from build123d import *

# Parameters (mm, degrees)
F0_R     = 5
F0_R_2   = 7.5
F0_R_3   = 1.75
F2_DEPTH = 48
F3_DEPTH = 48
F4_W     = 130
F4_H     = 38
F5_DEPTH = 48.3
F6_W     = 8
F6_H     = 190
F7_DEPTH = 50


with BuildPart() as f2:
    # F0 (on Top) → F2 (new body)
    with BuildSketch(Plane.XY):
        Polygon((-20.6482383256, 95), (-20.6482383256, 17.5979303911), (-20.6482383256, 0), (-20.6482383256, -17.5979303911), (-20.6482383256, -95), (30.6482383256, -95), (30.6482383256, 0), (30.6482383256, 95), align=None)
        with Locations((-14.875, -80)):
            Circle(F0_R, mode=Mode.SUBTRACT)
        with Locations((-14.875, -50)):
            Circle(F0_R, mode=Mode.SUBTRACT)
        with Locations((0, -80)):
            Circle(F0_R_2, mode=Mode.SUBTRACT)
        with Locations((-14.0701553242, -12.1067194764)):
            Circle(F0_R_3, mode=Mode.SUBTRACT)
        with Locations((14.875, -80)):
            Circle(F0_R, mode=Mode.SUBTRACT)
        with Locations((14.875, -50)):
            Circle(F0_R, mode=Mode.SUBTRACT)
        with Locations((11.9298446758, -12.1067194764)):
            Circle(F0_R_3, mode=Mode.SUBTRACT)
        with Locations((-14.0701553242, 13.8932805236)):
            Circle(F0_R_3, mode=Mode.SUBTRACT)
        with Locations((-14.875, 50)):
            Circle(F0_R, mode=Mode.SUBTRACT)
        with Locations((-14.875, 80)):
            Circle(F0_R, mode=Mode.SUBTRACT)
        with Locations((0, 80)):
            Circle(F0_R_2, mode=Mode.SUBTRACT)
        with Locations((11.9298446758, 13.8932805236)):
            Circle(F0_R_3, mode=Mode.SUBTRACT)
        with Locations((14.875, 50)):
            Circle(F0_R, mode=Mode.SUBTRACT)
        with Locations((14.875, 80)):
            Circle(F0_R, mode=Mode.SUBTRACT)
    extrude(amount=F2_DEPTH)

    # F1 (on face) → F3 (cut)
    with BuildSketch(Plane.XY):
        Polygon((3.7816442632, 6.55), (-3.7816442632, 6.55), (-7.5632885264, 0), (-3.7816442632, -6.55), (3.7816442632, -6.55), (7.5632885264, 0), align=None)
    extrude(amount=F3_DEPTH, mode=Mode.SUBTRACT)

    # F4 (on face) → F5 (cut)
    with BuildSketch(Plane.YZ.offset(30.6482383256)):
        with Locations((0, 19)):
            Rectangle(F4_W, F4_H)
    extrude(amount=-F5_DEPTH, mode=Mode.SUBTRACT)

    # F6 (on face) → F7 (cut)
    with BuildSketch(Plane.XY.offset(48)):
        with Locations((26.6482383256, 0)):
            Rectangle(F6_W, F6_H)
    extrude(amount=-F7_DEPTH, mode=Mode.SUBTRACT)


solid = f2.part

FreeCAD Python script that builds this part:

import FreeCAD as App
import Part
import Sketcher
Q = App.Units.Quantity

doc = App.newDocument("Part")
body = doc.addObject("PartDesign::Body", "Body")

sketch1 = body.newObject("Sketcher::SketchObject", "Sketch")
sketch1.AttachmentSupport = (doc.getObject("XY_Plane"), [""])
sketch1.MapMode = "FlatFace"
sketch1.addGeometry([
    Part.LineSegment(App.Vector(-20.648238, 95, 0), App.Vector(-20.648238, -95, 0)),
    Part.LineSegment(App.Vector(-20.648238, -95, 0), App.Vector(30.648238, -95, 0)),
    Part.LineSegment(App.Vector(30.648238, -95, 0), App.Vector(30.648238, 95, 0)),
    Part.LineSegment(App.Vector(30.648238, 95, 0), App.Vector(-20.648238, 95, 0)),
    Part.Circle(App.Vector(-14.875, -80, 0), App.Vector(0, 0, 1), 5),
    Part.Circle(App.Vector(-14.875, -50, 0), App.Vector(0, 0, 1), 5),
    Part.Circle(App.Vector(-14.070155, -12.106719, 0), App.Vector(0, 0, 1), 1.75),
    Part.Circle(App.Vector(0, -80, 0), App.Vector(0, 0, 1), 7.5),
    Part.Circle(App.Vector(14.875, -80, 0), App.Vector(0, 0, 1), 5),
    Part.Circle(App.Vector(14.875, -50, 0), App.Vector(0, 0, 1), 5),
    Part.Circle(App.Vector(11.929845, -12.106719, 0), App.Vector(0, 0, 1), 1.75),
    Part.Circle(App.Vector(-14.070155, 13.893281, 0), App.Vector(0, 0, 1), 1.75),
    Part.Circle(App.Vector(-14.875, 50, 0), App.Vector(0, 0, 1), 5),
    Part.Circle(App.Vector(-14.875, 80, 0), App.Vector(0, 0, 1), 5),
    Part.Circle(App.Vector(11.929845, 13.893281, 0), App.Vector(0, 0, 1), 1.75),
    Part.Circle(App.Vector(0, 80, 0), App.Vector(0, 0, 1), 7.5),
    Part.Circle(App.Vector(14.875, 50, 0), App.Vector(0, 0, 1), 5),
    Part.Circle(App.Vector(14.875, 80, 0), App.Vector(0, 0, 1), 5),
], False)
sketch1.addConstraint([
    Sketcher.Constraint("Coincident", 0, 2, 1, 1),
    Sketcher.Constraint("Coincident", 1, 2, 2, 1),
    Sketcher.Constraint("Coincident", 2, 2, 3, 1),
    Sketcher.Constraint("Coincident", 3, 2, 0, 1),
    Sketcher.Constraint("Vertical", 0),
    Sketcher.Constraint("Horizontal", 1),
    Sketcher.Constraint("Vertical", 2),
    Sketcher.Constraint("Horizontal", 3),
    Sketcher.Constraint("Equal", 4, 5),
    Sketcher.Constraint("Equal", 5, 8),
    Sketcher.Constraint("Equal", 8, 9),
    Sketcher.Constraint("Equal", 6, 10),
    Sketcher.Constraint("Equal", 10, 11),
    Sketcher.Constraint("Equal", 9, 12),
    Sketcher.Constraint("Equal", 12, 13),
    Sketcher.Constraint("Equal", 11, 14),
    Sketcher.Constraint("Equal", 7, 15),
    Sketcher.Constraint("Equal", 13, 16),
    Sketcher.Constraint("Equal", 16, 17),
    Sketcher.Constraint("Symmetric", 9, 3, 12, 3, -1, 1),
    Sketcher.Constraint("Symmetric", 8, 3, 13, 3, -1, 1),
    Sketcher.Constraint("Symmetric", 7, 3, 15, 3, -1, 1),
    Sketcher.Constraint("Symmetric", 5, 3, 16, 3, -1, 1),
    Sketcher.Constraint("Symmetric", 4, 3, 17, 3, -1, 1),
    Sketcher.Constraint("Symmetric", 4, 3, 8, 3, -2),
    Sketcher.Constraint("Symmetric", 5, 3, 9, 3, -2),
    Sketcher.Constraint("PointOnObject", 7, 3, -2),
    Sketcher.Constraint("Horizontal", 4, 3, 7, 3),
    Sketcher.Constraint("Horizontal", 6, 3, 10, 3),
    Sketcher.Constraint("Horizontal", 11, 3, 14, 3),
    Sketcher.Constraint("Vertical", 4, 3, 5, 3),
    Sketcher.Constraint("Vertical", 6, 3, 11, 3),
    Sketcher.Constraint("Vertical", 10, 3, 14, 3),
    Sketcher.Constraint("Diameter", 4, Q("10 mm")),
    Sketcher.Constraint("Diameter", 7, Q("15 mm")),
    Sketcher.Constraint("Diameter", 6, Q("3.5 mm")),
    Sketcher.Constraint("DistanceY", 0, 2, 0, 1, Q("190 mm")),
    Sketcher.Constraint("DistanceY", 4, 3, -1, 1, Q("80 mm")),
    Sketcher.Constraint("DistanceY", 5, 3, -1, 1, Q("50 mm")),
    Sketcher.Constraint("DistanceY", 0, 2, -1, 1, Q("95 mm")),
    Sketcher.Constraint("DistanceX", 6, 3, 10, 3, Q("26 mm")),
    Sketcher.Constraint("DistanceY", 6, 3, 11, 3, Q("26 mm")),
    Sketcher.Constraint("DistanceX", 4, 3, 8, 3, Q("29.75 mm")),
    Sketcher.Constraint("DistanceX", 1, 1, 1, 2, Q("51.296477 mm")),
    Sketcher.Constraint("DistanceY", 6, 3, -1, 1, Q("12.106719 mm")),
    Sketcher.Constraint("DistanceX", 0, 2, -1, 1, Q("20.648238 mm")),
    Sketcher.Constraint("DistanceX", 6, 3, -1, 1, Q("14.070155 mm")),
])
pad1 = body.newObject("PartDesign::Pad", "Pad")
pad1.Profile = sketch1
pad1.Length = 48

sketch2 = body.newObject("Sketcher::SketchObject", "Sketch001")
sketch2.AttachmentSupport = (doc.getObject("XY_Plane"), [""])
sketch2.MapMode = "FlatFace"
sketch2.addGeometry([
    Part.LineSegment(App.Vector(3.781644, 6.55, 0), App.Vector(-3.781644, 6.55, 0)),
    Part.LineSegment(App.Vector(-3.781644, 6.55, 0), App.Vector(-7.563289, 0, 0)),
    Part.LineSegment(App.Vector(-7.563289, 0, 0), App.Vector(-3.781644, -6.55, 0)),
    Part.LineSegment(App.Vector(-3.781644, -6.55, 0), App.Vector(3.781644, -6.55, 0)),
    Part.LineSegment(App.Vector(3.781644, -6.55, 0), App.Vector(7.563289, 0, 0)),
    Part.LineSegment(App.Vector(7.563289, 0, 0), App.Vector(3.781644, 6.55, 0)),
], False)
sketch2.addConstraint([
    Sketcher.Constraint("Coincident", 0, 2, 1, 1),
    Sketcher.Constraint("Coincident", 1, 2, 2, 1),
    Sketcher.Constraint("Coincident", 2, 2, 3, 1),
    Sketcher.Constraint("Coincident", 3, 2, 4, 1),
    Sketcher.Constraint("Coincident", 4, 2, 5, 1),
    Sketcher.Constraint("Coincident", 5, 2, 0, 1),
    Sketcher.Constraint("Horizontal", 0),
    Sketcher.Constraint("Horizontal", 3),
    Sketcher.Constraint("Symmetric", 0, 2, 3, 2, -1, 1),
    Sketcher.Constraint("Symmetric", 1, 2, 4, 2, -1, 1),
    Sketcher.Constraint("PointOnObject", 1, 2, -1),
    Sketcher.Constraint("Parallel", 2, 5),
    Sketcher.Constraint("Vertical", 0, 2, 2, 2),
    Sketcher.Constraint("Angle", 1, Q("-120 deg")),
    Sketcher.Constraint("DistanceY", 2, 2, 0, 2, Q("13.1 mm")),
    Sketcher.Constraint("DistanceX", 0, 2, 0, 1, Q("7.563289 mm")),
])
pocket1 = body.newObject("PartDesign::Pocket", "Pocket")
pocket1.Profile = sketch2
pocket1.Length = 48
pocket1.Reversed = True

sketch3 = body.newObject("Sketcher::SketchObject", "Sketch002")
sketch3.AttachmentSupport = (doc.getObject("YZ_Plane"), [""])
sketch3.MapMode = "FlatFace"
sketch3.AttachmentOffset = App.Placement(App.Vector(0, 0, 30.648238), App.Rotation())
sketch3.addGeometry([
    Part.LineSegment(App.Vector(-65, 38, 0), App.Vector(-65, 0, 0)),
    Part.LineSegment(App.Vector(-65, 0, 0), App.Vector(65, 0, 0)),
    Part.LineSegment(App.Vector(65, 0, 0), App.Vector(65, 38, 0)),
    Part.LineSegment(App.Vector(65, 38, 0), App.Vector(-65, 38, 0)),
], False)
sketch3.addConstraint([
    Sketcher.Constraint("Coincident", 0, 2, 1, 1),
    Sketcher.Constraint("Coincident", 1, 2, 2, 1),
    Sketcher.Constraint("Coincident", 2, 2, 3, 1),
    Sketcher.Constraint("Coincident", 3, 2, 0, 1),
    Sketcher.Constraint("Vertical", 0),
    Sketcher.Constraint("Horizontal", 1),
    Sketcher.Constraint("Vertical", 2),
    Sketcher.Constraint("Horizontal", 3),
    Sketcher.Constraint("Symmetric", 0, 2, 1, 2, -1, 1),
    Sketcher.Constraint("DistanceX", 1, 1, 1, 2, Q("130 mm")),
    Sketcher.Constraint("DistanceY", 0, 2, 0, 1, Q("38 mm")),
])
pocket2 = body.newObject("PartDesign::Pocket", "Pocket001")
pocket2.Profile = sketch3
pocket2.Length = 48.3

sketch4 = body.newObject("Sketcher::SketchObject", "Sketch003")
sketch4.AttachmentSupport = (doc.getObject("XY_Plane"), [""])
sketch4.MapMode = "FlatFace"
sketch4.AttachmentOffset = App.Placement(App.Vector(0, 0, 48), App.Rotation())
sketch4.addGeometry([
    Part.LineSegment(App.Vector(22.648238, 95, 0), App.Vector(22.648238, -95, 0)),
    Part.LineSegment(App.Vector(22.648238, -95, 0), App.Vector(30.648238, -95, 0)),
    Part.LineSegment(App.Vector(30.648238, -95, 0), App.Vector(30.648238, 95, 0)),
    Part.LineSegment(App.Vector(30.648238, 95, 0), App.Vector(22.648238, 95, 0)),
], False)
sketch4.addConstraint([
    Sketcher.Constraint("Coincident", 0, 2, 1, 1),
    Sketcher.Constraint("Coincident", 1, 2, 2, 1),
    Sketcher.Constraint("Coincident", 2, 2, 3, 1),
    Sketcher.Constraint("Coincident", 3, 2, 0, 1),
    Sketcher.Constraint("Vertical", 0),
    Sketcher.Constraint("Horizontal", 1),
    Sketcher.Constraint("Vertical", 2),
    Sketcher.Constraint("Horizontal", 3),
    Sketcher.Constraint("DistanceX", 1, 1, 1, 2, Q("8 mm")),
    Sketcher.Constraint("DistanceY", 0, 2, 0, 1, Q("190 mm")),
    Sketcher.Constraint("DistanceY", 0, 2, -1, 1, Q("95 mm")),
    Sketcher.Constraint("DistanceX", -1, 1, 0, 2, Q("22.648238 mm")),
])
pocket3 = body.newObject("PartDesign::Pocket", "Pocket002")
pocket3.Profile = sketch4
pocket3.Length = 50

doc.recompute()
